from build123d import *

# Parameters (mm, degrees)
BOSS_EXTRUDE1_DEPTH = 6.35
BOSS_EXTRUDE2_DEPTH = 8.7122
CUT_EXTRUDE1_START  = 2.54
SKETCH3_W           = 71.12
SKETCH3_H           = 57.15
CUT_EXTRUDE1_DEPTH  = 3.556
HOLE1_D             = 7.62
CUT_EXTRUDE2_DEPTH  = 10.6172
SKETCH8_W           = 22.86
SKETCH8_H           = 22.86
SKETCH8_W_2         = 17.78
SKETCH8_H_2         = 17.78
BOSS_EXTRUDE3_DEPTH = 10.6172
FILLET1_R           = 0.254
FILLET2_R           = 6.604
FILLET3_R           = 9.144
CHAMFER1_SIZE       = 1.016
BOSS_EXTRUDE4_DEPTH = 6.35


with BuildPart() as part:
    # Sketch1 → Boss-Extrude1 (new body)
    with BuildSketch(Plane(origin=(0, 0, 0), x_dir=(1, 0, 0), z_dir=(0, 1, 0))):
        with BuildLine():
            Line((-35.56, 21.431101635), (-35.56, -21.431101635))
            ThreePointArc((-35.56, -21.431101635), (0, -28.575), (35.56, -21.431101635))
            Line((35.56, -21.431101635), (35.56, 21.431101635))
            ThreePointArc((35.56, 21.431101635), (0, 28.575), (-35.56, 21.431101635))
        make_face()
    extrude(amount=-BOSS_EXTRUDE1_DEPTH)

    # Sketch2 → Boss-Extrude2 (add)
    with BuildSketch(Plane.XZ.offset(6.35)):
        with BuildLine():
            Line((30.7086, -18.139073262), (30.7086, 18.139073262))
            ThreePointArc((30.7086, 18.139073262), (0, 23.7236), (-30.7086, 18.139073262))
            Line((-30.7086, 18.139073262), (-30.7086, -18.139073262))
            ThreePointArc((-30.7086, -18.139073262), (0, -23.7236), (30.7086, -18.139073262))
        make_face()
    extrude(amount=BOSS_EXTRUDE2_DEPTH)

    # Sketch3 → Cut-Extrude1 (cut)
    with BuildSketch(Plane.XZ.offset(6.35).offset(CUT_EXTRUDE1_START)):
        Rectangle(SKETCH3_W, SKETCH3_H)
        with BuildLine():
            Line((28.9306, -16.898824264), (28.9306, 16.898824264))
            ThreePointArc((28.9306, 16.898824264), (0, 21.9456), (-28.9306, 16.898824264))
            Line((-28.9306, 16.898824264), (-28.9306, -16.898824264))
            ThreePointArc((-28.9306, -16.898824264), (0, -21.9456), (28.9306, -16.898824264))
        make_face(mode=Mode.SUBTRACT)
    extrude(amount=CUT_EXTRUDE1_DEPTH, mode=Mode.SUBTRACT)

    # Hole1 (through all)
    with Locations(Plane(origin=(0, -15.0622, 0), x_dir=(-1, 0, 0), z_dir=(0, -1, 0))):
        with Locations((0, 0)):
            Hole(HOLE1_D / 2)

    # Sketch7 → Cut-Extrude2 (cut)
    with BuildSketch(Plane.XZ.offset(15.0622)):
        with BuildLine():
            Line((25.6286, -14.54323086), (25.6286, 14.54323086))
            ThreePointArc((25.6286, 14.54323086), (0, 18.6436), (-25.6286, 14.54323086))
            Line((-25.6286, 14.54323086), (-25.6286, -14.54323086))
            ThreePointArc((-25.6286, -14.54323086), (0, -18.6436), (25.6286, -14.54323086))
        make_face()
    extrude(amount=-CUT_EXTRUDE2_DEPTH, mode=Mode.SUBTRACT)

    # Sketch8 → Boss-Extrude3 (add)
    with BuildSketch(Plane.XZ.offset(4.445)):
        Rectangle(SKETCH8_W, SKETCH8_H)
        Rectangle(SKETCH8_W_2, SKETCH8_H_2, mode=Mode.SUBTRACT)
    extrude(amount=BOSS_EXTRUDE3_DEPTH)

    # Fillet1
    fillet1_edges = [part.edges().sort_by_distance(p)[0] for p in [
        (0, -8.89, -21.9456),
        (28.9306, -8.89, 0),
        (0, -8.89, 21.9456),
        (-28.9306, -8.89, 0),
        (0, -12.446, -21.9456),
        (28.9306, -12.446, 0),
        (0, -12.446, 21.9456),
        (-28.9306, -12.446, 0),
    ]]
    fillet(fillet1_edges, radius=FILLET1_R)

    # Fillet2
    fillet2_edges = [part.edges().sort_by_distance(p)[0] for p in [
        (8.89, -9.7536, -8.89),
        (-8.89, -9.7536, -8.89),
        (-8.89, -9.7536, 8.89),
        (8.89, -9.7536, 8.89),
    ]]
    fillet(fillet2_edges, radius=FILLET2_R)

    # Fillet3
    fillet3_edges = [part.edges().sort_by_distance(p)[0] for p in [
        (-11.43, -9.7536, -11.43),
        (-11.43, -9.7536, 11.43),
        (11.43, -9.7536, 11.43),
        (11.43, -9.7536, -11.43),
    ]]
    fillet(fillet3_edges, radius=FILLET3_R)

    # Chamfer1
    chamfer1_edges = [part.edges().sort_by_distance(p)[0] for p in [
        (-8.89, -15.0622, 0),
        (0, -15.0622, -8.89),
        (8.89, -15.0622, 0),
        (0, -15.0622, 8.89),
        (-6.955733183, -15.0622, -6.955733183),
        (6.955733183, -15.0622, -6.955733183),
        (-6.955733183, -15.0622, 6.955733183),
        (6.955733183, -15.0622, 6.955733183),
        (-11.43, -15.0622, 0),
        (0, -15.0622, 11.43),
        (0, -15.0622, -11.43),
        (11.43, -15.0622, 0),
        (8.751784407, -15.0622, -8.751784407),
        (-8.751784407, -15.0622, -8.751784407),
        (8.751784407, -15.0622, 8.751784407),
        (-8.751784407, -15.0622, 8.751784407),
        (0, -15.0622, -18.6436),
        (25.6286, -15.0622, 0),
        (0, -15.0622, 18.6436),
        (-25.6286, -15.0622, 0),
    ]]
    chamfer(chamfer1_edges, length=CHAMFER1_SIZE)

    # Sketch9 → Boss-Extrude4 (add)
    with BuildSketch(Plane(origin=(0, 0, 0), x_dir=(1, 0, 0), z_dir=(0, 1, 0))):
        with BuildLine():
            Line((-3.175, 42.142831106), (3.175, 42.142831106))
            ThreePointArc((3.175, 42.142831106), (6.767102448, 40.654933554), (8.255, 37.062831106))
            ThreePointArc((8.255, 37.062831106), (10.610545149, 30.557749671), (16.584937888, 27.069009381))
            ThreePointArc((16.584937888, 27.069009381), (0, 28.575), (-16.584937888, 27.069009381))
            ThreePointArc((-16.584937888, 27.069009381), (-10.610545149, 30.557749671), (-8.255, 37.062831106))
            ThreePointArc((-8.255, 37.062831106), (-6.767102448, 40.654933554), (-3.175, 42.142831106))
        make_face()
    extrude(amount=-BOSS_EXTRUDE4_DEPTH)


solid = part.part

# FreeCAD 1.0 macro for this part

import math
import FreeCAD as App
import Part
import Sketcher
Q = App.Units.Quantity


def edges_at(feature, points):
    """Names of the edges that pass closest to the given points."""
    edges = feature.Shape.Edges
    near = lambda p: min(range(len(edges)), key=lambda i: edges[i].distToShape(Part.Vertex(*p))[0])
    return sorted({f"Edge{near(p) + 1}" for p in points})

doc = App.newDocument("Part")
body = doc.addObject("PartDesign::Body", "Body")

# Sketch on XZ plane
sketch1 = body.newObject("Sketcher::SketchObject", "Sketch")
sketch1.AttachmentSupport = (doc.getObject("XZ_Plane"), [""])
sketch1.MapMode = "FlatFace"
sketch1.addGeometry(Part.LineSegment(App.Vector(-36, -21, 0), App.Vector(-36, 21, 0)), False)
sketch1.addGeometry(Part.ArcOfCircle(Part.Circle(App.Vector(0, -63, 0), App.Vector(0, 0, 1), 92), math.radians(67), math.radians(113)), False)
sketch1.addGeometry(Part.LineSegment(App.Vector(36, 21, 0), App.Vector(36, -21, 0)), False)
sketch1.addGeometry(Part.ArcOfCircle(Part.Circle(App.Vector(0, 63, 0), App.Vector(0, 0, 1), 92), math.radians(-113), math.radians(-67)), False)
sketch1.addConstraint(Sketcher.Constraint("Coincident", 0, 2, 1, 2))
sketch1.addConstraint(Sketcher.Constraint("Coincident", 1, 1, 2, 1))
sketch1.addConstraint(Sketcher.Constraint("Coincident", 2, 2, 3, 2))
sketch1.addConstraint(Sketcher.Constraint("Coincident", 3, 1, 0, 1))
sketch1.addConstraint(Sketcher.Constraint("Vertical", 0))
sketch1.addConstraint(Sketcher.Constraint("Vertical", 2))
sketch1.addConstraint(Sketcher.Constraint("Equal", 1, 3))
sketch1.addConstraint(Sketcher.Constraint("Symmetric", 1, 3, 3, 3, -1, 1))
sketch1.addConstraint(Sketcher.Constraint("Symmetric", 0, 2, 1, 1, -2))
sketch1.addConstraint(Sketcher.Constraint("Radius", 1, Q("3.625 in")))
sketch1.addConstraint(Sketcher.Constraint("DistanceY", 1, 3, 3, 3, Q("5 in")))
sketch1.addConstraint(Sketcher.Constraint("DistanceX", 0, 2, -1, 1, Q("1.4 in")))
pad1 = body.newObject("PartDesign::Pad", "Pad")
pad1.Profile = sketch1
pad1.Length = Q("0.25 in")

# Sketch on XZ plane
sketch2 = body.newObject("Sketcher::SketchObject", "Sketch001")
sketch2.AttachmentSupport = (doc.getObject("XZ_Plane"), [""])
sketch2.MapMode = "FlatFace"
sketch2.AttachmentOffset = App.Placement(App.Vector(0, 0, 0.25 * 25.4), App.Rotation())
sketch2.addGeometry(Part.LineSegment(App.Vector(31, -18, 0), App.Vector(31, 18, 0)), False)
sketch2.addGeometry(Part.ArcOfCircle(Part.Circle(App.Vector(0, -64, 0), App.Vector(0, 0, 1), 87), math.radians(69), math.radians(111)), False)
sketch2.addGeometry(Part.LineSegment(App.Vector(-31, 18, 0), App.Vector(-31, -18, 0)), False)
sketch2.addGeometry(Part.ArcOfCircle(Part.Circle(App.Vector(0, 64, 0), App.Vector(0, 0, 1), 87), math.radians(-111), math.radians(-69)), False)
sketch2.addConstraint(Sketcher.Constraint("Coincident", 0, 2, 1, 1))
sketch2.addConstraint(Sketcher.Constraint("Coincident", 1, 2, 2, 1))
sketch2.addConstraint(Sketcher.Constraint("Coincident", 2, 2, 3, 1))
sketch2.addConstraint(Sketcher.Constraint("Coincident", 3, 2, 0, 1))
sketch2.addConstraint(Sketcher.Constraint("Vertical", 0))
sketch2.addConstraint(Sketcher.Constraint("Vertical", 2))
sketch2.addConstraint(Sketcher.Constraint("Equal", 1, 3))
sketch2.addConstraint(Sketcher.Constraint("Symmetric", 1, 3, 3, 3, -1, 1))
sketch2.addConstraint(Sketcher.Constraint("Symmetric", 0, 2, 1, 2, -2))
sketch2.addConstraint(Sketcher.Constraint("Radius", 1, Q("3.434 in")))
sketch2.addConstraint(Sketcher.Constraint("DistanceY", 1, 3, 3, 3, Q("5 in")))
sketch2.addConstraint(Sketcher.Constraint("DistanceX", -1, 1, 0, 2, Q("1.209 in")))
pad2 = body.newObject("PartDesign::Pad", "Pad001")
pad2.Profile = sketch2
pad2.Length = Q("0.343 in")

# Sketch on XZ plane
sketch3 = body.newObject("Sketcher::SketchObject", "Sketch002")
sketch3.AttachmentSupport = (doc.getObject("XZ_Plane"), [""])
sketch3.MapMode = "FlatFace"
sketch3.AttachmentOffset = App.Placement(App.Vector(0, 0, 0.35 * 25.4), App.Rotation())
sketch3.addGeometry(Part.LineSegment(App.Vector(-36, 29, 0), App.Vector(-36, -29, 0)), False)
sketch3.addGeometry(Part.LineSegment(App.Vector(-36, -29, 0), App.Vector(36, -29, 0)), False)
sketch3.addGeometry(Part.LineSegment(App.Vector(36, -29, 0), App.Vector(36, 29, 0)), False)
sketch3.addGeometry(Part.LineSegment(App.Vector(36, 29, 0), App.Vector(-36, 29, 0)), False)
sketch3.addGeometry(Part.LineSegment(App.Vector(29, 17, 0), App.Vector(29, -17, 0)), False)
sketch3.addGeometry(Part.ArcOfCircle(Part.Circle(App.Vector(0, 64, 0), App.Vector(0, 0, 1), 85), math.radians(-110), math.radians(-70)), False)
sketch3.addGeometry(Part.LineSegment(App.Vector(-29, -17, 0), App.Vector(-29, 17, 0)), False)
sketch3.addGeometry(Part.ArcOfCircle(Part.Circle(App.Vector(0, -64, 0), App.Vector(0, 0, 1), 85), math.radians(70), math.radians(110)), False)
sketch3.addConstraint(Sketcher.Constraint("Coincident", 0, 2, 1, 1))
sketch3.addConstraint(Sketcher.Constraint("Coincident", 1, 2, 2, 1))
sketch3.addConstraint(Sketcher.Constraint("Coincident", 2, 2, 3, 1))
sketch3.addConstraint(Sketcher.Constraint("Coincident", 3, 2, 0, 1))
sketch3.addConstraint(Sketcher.Constraint("Coincident", 4, 2, 5, 2))
sketch3.addConstraint(Sketcher.Constraint("Coincident", 5, 1, 6, 1))
sketch3.addConstraint(Sketcher.Constraint("Coincident", 6, 2, 7, 2))
sketch3.addConstraint(Sketcher.Constraint("Coincident", 7, 1, 4, 1))
sketch3.addConstraint(Sketcher.Constraint("Vertical", 0))
sketch3.addConstraint(Sketcher.Constraint("Horizontal", 1))
sketch3.addConstraint(Sketcher.Constraint("Vertical", 2))
sketch3.addConstraint(Sketcher.Constraint("Horizontal", 3))
sketch3.addConstraint(Sketcher.Constraint("Vertical", 4))
sketch3.addConstraint(Sketcher.Constraint("Vertical", 6))
sketch3.addConstraint(Sketcher.Constraint("Equal", 5, 7))
sketch3.addConstraint(Sketcher.Constraint("Symmetric", 5, 3, 7, 3, -1, 1))
sketch3.addConstraint(Sketcher.Constraint("Symmetric", 0, 2, 2, 2, -1, 1))
sketch3.addConstraint(Sketcher.Constraint("Symmetric", 4, 2, 5, 1, -2))
sketch3.addConstraint(Sketcher.Constraint("DistanceX", 1, 1, 1, 2, Q("2.8 in")))
sketch3.addConstraint(Sketcher.Constraint("Radius", 5, Q("3.364 in")))
sketch3.addConstraint(Sketcher.Constraint("DistanceY", 7, 3, 5, 3, Q("5 in")))
sketch3.addConstraint(Sketcher.Constraint("DistanceY", 0, 2, 0, 1, Q("2.25 in")))
sketch3.addConstraint(Sketcher.Constraint("DistanceX", -1, 1, 4, 2, Q("1.139 in")))
pocket1 = body.newObject("PartDesign::Pocket", "Pocket")
pocket1.Profile = sketch3
pocket1.Length = Q("0.14 in")
pocket1.Reversed = True

# Sketch on XZ plane
sketch4 = body.newObject("Sketcher::SketchObject", "Sketch003")
sketch4.AttachmentSupport = (doc.getObject("XZ_Plane"), [""])
sketch4.MapMode = "FlatFace"
sketch4.AttachmentOffset = App.Placement(App.Vector(0, 0, 0.593 * 25.4), App.Rotation())
sketch4.addGeometry(Part.Circle(App.Vector(0, 0, 0), App.Vector(0, 0, 1), 3.8), False)
sketch4.addConstraint(Sketcher.Constraint("Coincident", 0, 3, -1, 1))
sketch4.addConstraint(Sketcher.Constraint("Diameter", 0, Q("0.3 in")))
doc.recompute()
hole = body.newObject("PartDesign::Hole", "Hole")
hole.Profile = sketch4
hole.ThreadType = "None"
hole.Diameter = Q("0.3 in")
hole.DepthType = "ThroughAll"

# Sketch on XZ plane
sketch5 = body.newObject("Sketcher::SketchObject", "Sketch004")
sketch5.AttachmentSupport = (doc.getObject("XZ_Plane"), [""])
sketch5.MapMode = "FlatFace"
sketch5.AttachmentOffset = App.Placement(App.Vector(0, 0, 0.593 * 25.4), App.Rotation())
sketch5.addGeometry(Part.LineSegment(App.Vector(26, -15, 0), App.Vector(26, 15, 0)), False)
sketch5.addGeometry(Part.ArcOfCircle(Part.Circle(App.Vector(0, -64, 0), App.Vector(0, 0, 1), 82), math.radians(72), math.radians(108)), False)
sketch5.addGeometry(Part.LineSegment(App.Vector(-26, 15, 0), App.Vector(-26, -15, 0)), False)
sketch5.addGeometry(Part.ArcOfCircle(Part.Circle(App.Vector(0, 64, 0), App.Vector(0, 0, 1), 82), math.radians(-108), math.radians(-72)), False)
sketch5.addConstraint(Sketcher.Constraint("Coincident", 0, 2, 1, 1))
sketch5.addConstraint(Sketcher.Constraint("Coincident", 1, 2, 2, 1))
sketch5.addConstraint(Sketcher.Constraint("Coincident", 2, 2, 3, 1))
sketch5.addConstraint(Sketcher.Constraint("Coincident", 3, 2, 0, 1))
sketch5.addConstraint(Sketcher.Constraint("Vertical", 0))
sketch5.addConstraint(Sketcher.Constraint("Vertical", 2))
sketch5.addConstraint(Sketcher.Constraint("Equal", 1, 3))
sketch5.addConstraint(Sketcher.Constraint("Symmetric", 1, 3, 3, 3, -1, 1))
sketch5.addConstraint(Sketcher.Constraint("Symmetric", 0, 2, 1, 2, -2))
sketch5.addConstraint(Sketcher.Constraint("Radius", 1, Q("3.234 in")))
sketch5.addConstraint(Sketcher.Constraint("DistanceY", 1, 3, 3, 3, Q("5 in")))
sketch5.addConstraint(Sketcher.Constraint("DistanceX", -1, 1, 0, 2, Q("1.009 in")))
pocket2 = body.newObject("PartDesign::Pocket", "Pocket001")
pocket2.Profile = sketch5
pocket2.Length = Q("0.418 in")

# Sketch on XZ plane
sketch6 = body.newObject("Sketcher::SketchObject", "Sketch005")
sketch6.AttachmentSupport = (doc.getObject("XZ_Plane"), [""])
sketch6.MapMode = "FlatFace"
sketch6.AttachmentOffset = App.Placement(App.Vector(0, 0, 0.175 * 25.4), App.Rotation())
sketch6.addGeometry(Part.LineSegment(App.Vector(-11, 11, 0), App.Vector(-11, -11, 0)), False)
sketch6.addGeometry(Part.LineSegment(App.Vector(-11, -11, 0), App.Vector(11, -11, 0)), False)
sketch6.addGeometry(Part.LineSegment(App.Vector(11, -11, 0), App.Vector(11, 11, 0)), False)
sketch6.addGeometry(Part.LineSegment(App.Vector(11, 11, 0), App.Vector(-11, 11, 0)), False)
sketch6.addGeometry(Part.LineSegment(App.Vector(9, -9, 0), App.Vector(-9, -9, 0)), False)
sketch6.addGeometry(Part.LineSegment(App.Vector(-9, -9, 0), App.Vector(-9, 9, 0)), False)
sketch6.addGeometry(Part.LineSegment(App.Vector(-9, 9, 0), App.Vector(9, 9, 0)), False)
sketch6.addGeometry(Part.LineSegment(App.Vector(9, 9, 0), App.Vector(9, -9, 0)), False)
sketch6.addConstraint(Sketcher.Constraint("Coincident", 0, 2, 1, 1))
sketch6.addConstraint(Sketcher.Constraint("Coincident", 1, 2, 2, 1))
sketch6.addConstraint(Sketcher.Constraint("Coincident", 2, 2, 3, 1))
sketch6.addConstraint(Sketcher.Constraint("Coincident", 3, 2, 0, 1))
sketch6.addConstraint(Sketcher.Constraint("Coincident", 4, 2, 5, 1))
sketch6.addConstraint(Sketcher.Constraint("Coincident", 5, 2, 6, 1))
sketch6.addConstraint(Sketcher.Constraint("Coincident", 6, 2, 7, 1))
sketch6.addConstraint(Sketcher.Constraint("Coincident", 7, 2, 4, 1))
sketch6.addConstraint(Sketcher.Constraint("Vertical", 0))
sketch6.addConstraint(Sketcher.Constraint("Horizontal", 1))
sketch6.addConstraint(Sketcher.Constraint("Vertical", 2))
sketch6.addConstraint(Sketcher.Constraint("Horizontal", 3))
sketch6.addConstraint(Sketcher.Constraint("Horizontal", 4))
sketch6.addConstraint(Sketcher.Constraint("Vertical", 5))
sketch6.addConstraint(Sketcher.Constraint("Horizontal", 6))
sketch6.addConstraint(Sketcher.Constraint("Vertical", 7))
sketch6.addConstraint(Sketcher.Constraint("Symmetric", 0, 2, 2, 2, -1, 1))
sketch6.addConstraint(Sketcher.Constraint("Symmetric", 4, 2, 6, 2, -1, 1))
sketch6.addConstraint(Sketcher.Constraint("Equal", 3, 0))
sketch6.addConstraint(Sketcher.Constraint("Equal", 6, 5))
sketch6.addConstraint(Sketcher.Constraint("DistanceX", 1, 1, 1, 2, Q("0.9 in")))
sketch6.addConstraint(Sketcher.Constraint("DistanceX", 4, 2, 4, 1, Q("0.7 in")))
pad3 = body.newObject("PartDesign::Pad", "Pad002")
pad3.Profile = sketch6
pad3.Length = Q("0.418 in")
doc.recompute()

fillet = body.newObject("PartDesign::Fillet", "Fillet")
fillet.Base = (pad3, edges_at(pad3, [
    (0, -8.89, -21.946),
    (28.931, -8.89, 0),
    (0, -8.89, 21.946),
    (-28.931, -8.89, 0),
    (0, -12.446, -21.946),
    (28.931, -12.446, 0),
    (0, -12.446, 21.946),
    (-28.931, -12.446, 0),
]))
fillet.Radius = Q("0.01 in")
doc.recompute()

fillet2 = body.newObject("PartDesign::Fillet", "Fillet001")
fillet2.Base = (fillet, edges_at(fillet, [
    (8.89, -9.754, -8.89),
    (-8.89, -9.754, -8.89),
    (-8.89, -9.754, 8.89),
    (8.89, -9.754, 8.89),
]))
fillet2.Radius = Q("0.26 in")
doc.recompute()

fillet3 = body.newObject("PartDesign::Fillet", "Fillet002")
fillet3.Base = (fillet2, edges_at(fillet2, [
    (-11.43, -9.754, -11.43),
    (-11.43, -9.754, 11.43),
    (11.43, -9.754, 11.43),
    (11.43, -9.754, -11.43),
]))
fillet3.Radius = Q("0.36 in")
doc.recompute()

chamfer = body.newObject("PartDesign::Chamfer", "Chamfer")
chamfer.Base = (fillet3, edges_at(fillet3, [
    (-8.89, -15.062, 0),
    (0, -15.062, -8.89),
    (8.89, -15.062, 0),
    (0, -15.062, 8.89),
    (-6.956, -15.062, -6.956),
    (6.956, -15.062, -6.956),
    (-6.956, -15.062, 6.956),
    (6.956, -15.062, 6.956),
    (-11.43, -15.062, 0),
    (0, -15.062, 11.43),
    (0, -15.062, -11.43),
    (11.43, -15.062, 0),
    (8.752, -15.062, -8.752),
    (-8.752, -15.062, -8.752),
    (8.752, -15.062, 8.752),
    (-8.752, -15.062, 8.752),
    (0, -15.062, -18.644),
    (25.629, -15.062, 0),
    (0, -15.062, 18.644),
    (-25.629, -15.062, 0),
]))
chamfer.Size = Q("0.04 in")

# Sketch on XZ plane
sketch7 = body.newObject("Sketcher::SketchObject", "Sketch006")
sketch7.AttachmentSupport = (doc.getObject("XZ_Plane"), [""])
sketch7.MapMode = "FlatFace"
sketch7.addGeometry(Part.LineSegment(App.Vector(3, -42, 0), App.Vector(-3, -42, 0)), False)
sketch7.addGeometry(Part.ArcOfCircle(Part.Circle(App.Vector(-3, -37, 0), App.Vector(0, 0, 1), 5), math.radians(-180), math.radians(-90)), False)
sketch7.addGeometry(Part.ArcOfCircle(Part.Circle(App.Vector(-18, -37, 0), App.Vector(0, 0, 1), 10), math.radians(0), math.radians(80)), False)
sketch7.addGeometry(Part.ArcOfCircle(Part.Circle(App.Vector(0, 64, 0), App.Vector(0, 0, 1), 92), math.radians(-100), math.radians(-80)), False)
sketch7.addGeometry(Part.ArcOfCircle(Part.Circle(App.Vector(18, -37, 0), App.Vector(0, 0, 1), 10), math.radians(100), math.radians(180)), False)
sketch7.addGeometry(Part.ArcOfCircle(Part.Circle(App.Vector(3, -37, 0), App.Vector(0, 0, 1), 5), math.radians(-90), math.radians(0)), False)
sketch7.addConstraint(Sketcher.Constraint("Tangent", 0, 2, 1, 2))
sketch7.addConstraint(Sketcher.Constraint("Tangent", 1, 1, 2, 1))
sketch7.addConstraint(Sketcher.Constraint("Tangent", 2, 2, 3, 1))
sketch7.addConstraint(Sketcher.Constraint("Tangent", 3, 2, 4, 1))
sketch7.addConstraint(Sketcher.Constraint("Tangent", 4, 2, 5, 2))
sketch7.addConstraint(Sketcher.Constraint("Tangent", 5, 1, 0, 1))
sketch7.addConstraint(Sketcher.Constraint("Horizontal", 0))
sketch7.addConstraint(Sketcher.Constraint("Equal", 2, 4))
sketch7.addConstraint(Sketcher.Constraint("Equal", 1, 5))
sketch7.addConstraint(Sketcher.Constraint("Symmetric", 2, 3, 4, 3, -2))
sketch7.addConstraint(Sketcher.Constraint("Horizontal", 1, 3, 2, 3))
sketch7.addConstraint(Sketcher.Constraint("Radius", 1, Q("0.2 in")))
sketch7.addConstraint(Sketcher.Constraint("Radius", 2, Q("0.4 in")))
sketch7.addConstraint(Sketcher.Constraint("Radius", 3, Q("3.625 in")))
sketch7.addConstraint(Sketcher.Constraint("DistanceX", 0, 2, 0, 1, Q("0.25 in")))
sketch7.addConstraint(Sketcher.Constraint("DistanceY", -1, 1, 3, 3, Q("2.5 in")))
pad4 = body.newObject("PartDesign::Pad", "Pad003")
pad4.Profile = sketch7
pad4.Length = Q("0.25 in")

doc.recompute()
